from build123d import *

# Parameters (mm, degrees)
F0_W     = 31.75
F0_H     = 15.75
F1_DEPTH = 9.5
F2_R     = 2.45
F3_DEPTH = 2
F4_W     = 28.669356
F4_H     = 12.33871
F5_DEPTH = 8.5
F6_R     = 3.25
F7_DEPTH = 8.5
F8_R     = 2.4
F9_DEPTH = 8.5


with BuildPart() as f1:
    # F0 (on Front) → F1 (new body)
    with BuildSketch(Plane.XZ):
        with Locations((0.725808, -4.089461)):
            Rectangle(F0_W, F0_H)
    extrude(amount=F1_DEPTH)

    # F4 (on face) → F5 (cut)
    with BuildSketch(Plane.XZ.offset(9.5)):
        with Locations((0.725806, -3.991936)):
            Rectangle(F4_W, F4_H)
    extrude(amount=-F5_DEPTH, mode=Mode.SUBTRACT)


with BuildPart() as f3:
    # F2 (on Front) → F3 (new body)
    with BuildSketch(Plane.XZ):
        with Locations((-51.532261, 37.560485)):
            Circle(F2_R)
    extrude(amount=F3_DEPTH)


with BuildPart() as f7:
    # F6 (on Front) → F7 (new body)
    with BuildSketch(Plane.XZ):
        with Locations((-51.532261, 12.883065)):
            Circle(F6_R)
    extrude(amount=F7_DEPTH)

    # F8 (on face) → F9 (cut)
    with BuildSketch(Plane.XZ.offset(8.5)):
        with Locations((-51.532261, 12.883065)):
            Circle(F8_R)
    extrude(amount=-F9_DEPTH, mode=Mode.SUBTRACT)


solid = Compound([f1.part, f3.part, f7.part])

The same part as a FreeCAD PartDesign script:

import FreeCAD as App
import Part
import Sketcher
Q = App.Units.Quantity

doc = App.newDocument("Part")
body = doc.addObject("PartDesign::Body", "Body")

# Sketch on XZ plane
sketch1 = doc.addObject("Sketcher::SketchObject", "Sketch")
body.addObject(sketch1)
sketch1.AttachmentSupport = (doc.XZ_Plane, [""])
sketch1.MapMode = "FlatFace"
sketch1.addGeometry([
    Part.LineSegment(App.Vector(-15, 4, 0), App.Vector(-15, -12, 0)),
    Part.LineSegment(App.Vector(-15, -12, 0), App.Vector(17, -12, 0)),
    Part.LineSegment(App.Vector(17, -12, 0), App.Vector(17, 4, 0)),
    Part.LineSegment(App.Vector(17, 4, 0), App.Vector(-15, 4, 0)),
], False)
sketch1.addConstraint([
    Sketcher.Constraint("Coincident", 0, 2, 1, 1),
    Sketcher.Constraint("Coincident", 1, 2, 2, 1),
    Sketcher.Constraint("Coincident", 2, 2, 3, 1),
    Sketcher.Constraint("Coincident", 3, 2, 0, 1),
    Sketcher.Constraint("Vertical", 0),
    Sketcher.Constraint("Horizontal", 1),
    Sketcher.Constraint("Vertical", 2),
    Sketcher.Constraint("Horizontal", 3),
    Sketcher.Constraint("DistanceX", 1, 1, 1, 2, Q("31.75 mm")),
    Sketcher.Constraint("DistanceY", 0, 2, 0, 1, Q("15.75 mm")),
    Sketcher.Constraint("DistanceX", 0, 2, -1, 1, Q("15.149192 mm")),
    Sketcher.Constraint("DistanceY", 0, 2, -1, 1, Q("11.964461 mm")),
])
pad1 = doc.addObject("PartDesign::Pad", "Pad")
body.addObject(pad1)
pad1.Profile = sketch1
pad1.Length = 9.5

# Sketch on XZ plane
sketch2 = doc.addObject("Sketcher::SketchObject", "Sketch001")
body.addObject(sketch2)
sketch2.AttachmentSupport = (doc.XZ_Plane, [""])
sketch2.MapMode = "FlatFace"
sketch2.AttachmentOffset = App.Placement(App.Vector(0, 0, 9.5), App.Rotation())
sketch2.addGeometry([
    Part.LineSegment(App.Vector(-14, 2, 0), App.Vector(-14, -10, 0)),
    Part.LineSegment(App.Vector(-14, -10, 0), App.Vector(15, -10, 0)),
    Part.LineSegment(App.Vector(15, -10, 0), App.Vector(15, 2, 0)),
    Part.LineSegment(App.Vector(15, 2, 0), App.Vector(-14, 2, 0)),
], False)
sketch2.addConstraint([
    Sketcher.Constraint("Coincident", 0, 2, 1, 1),
    Sketcher.Constraint("Coincident", 1, 2, 2, 1),
    Sketcher.Constraint("Coincident", 2, 2, 3, 1),
    Sketcher.Constraint("Coincident", 3, 2, 0, 1),
    Sketcher.Constraint("Vertical", 0),
    Sketcher.Constraint("Horizontal", 1),
    Sketcher.Constraint("Vertical", 2),
    Sketcher.Constraint("Horizontal", 3),
    Sketcher.Constraint("DistanceY", 0, 2, 0, 1, Q("12.33871 mm")),
    Sketcher.Constraint("DistanceX", 1, 1, 1, 2, Q("28.669356 mm")),
    Sketcher.Constraint("DistanceY", 0, 2, -1, 1, Q("10.161291 mm")),
    Sketcher.Constraint("DistanceX", 0, 2, -1, 1, Q("13.608872 mm")),
])
pocket1 = doc.addObject("PartDesign::Pocket", "Pocket")
body.addObject(pocket1)
pocket1.Profile = sketch2
pocket1.Length = 8.5
body2 = doc.addObject("PartDesign::Body", "Body001")

# Sketch on XZ plane
sketch3 = doc.addObject("Sketcher::SketchObject", "Sketch002")
body2.addObject(sketch3)
sketch3.AttachmentSupport = (doc.getObject("XZ_Plane001"), [""])
sketch3.MapMode = "FlatFace"
sketch3.addGeometry(Part.Circle(App.Vector(-51.5, 37.6, 0), App.Vector(0, 0, 1), 2.5), False)
sketch3.addConstraint([
    Sketcher.Constraint("Diameter", 0, Q("4.9 mm")),
    Sketcher.Constraint("DistanceX", 0, 3, -1, 1, Q("51.532261 mm")),
    Sketcher.Constraint("DistanceY", -1, 1, 0, 3, Q("37.560485 mm")),
])
pad2 = doc.addObject("PartDesign::Pad", "Pad001")
body2.addObject(pad2)
pad2.Profile = sketch3
pad2.Length = 2
body3 = doc.addObject("PartDesign::Body", "Body002")

# Sketch on XZ plane
sketch4 = doc.addObject("Sketcher::SketchObject", "Sketch003")
body3.addObject(sketch4)
sketch4.AttachmentSupport = (doc.getObject("XZ_Plane002"), [""])
sketch4.MapMode = "FlatFace"
sketch4.addGeometry(Part.Circle(App.Vector(-51.5, 12.9, 0), App.Vector(0, 0, 1), 3.2), False)
sketch4.addConstraint([
    Sketcher.Constraint("Diameter", 0, Q("6.5 mm")),
    Sketcher.Constraint("DistanceX", 0, 3, -1, 1, Q("51.532261 mm")),
    Sketcher.Constraint("DistanceY", -1, 1, 0, 3, Q("12.883065 mm")),
])
pad3 = doc.addObject("PartDesign::Pad", "Pad002")
body3.addObject(pad3)
pad3.Profile = sketch4
pad3.Length = 8.5

# Sketch on XZ plane
sketch5 = doc.addObject("Sketcher::SketchObject", "Sketch004")
body3.addObject(sketch5)
sketch5.AttachmentSupport = (doc.getObject("XZ_Plane002"), [""])
sketch5.MapMode = "FlatFace"
sketch5.AttachmentOffset = App.Placement(App.Vector(0, 0, 8.5), App.Rotation())
sketch5.addGeometry(Part.Circle(App.Vector(-51.5, 12.9, 0), App.Vector(0, 0, 1), 2.4), False)
sketch5.addConstraint([
    Sketcher.Constraint("Diameter", 0, Q("4.8 mm")),
    Sketcher.Constraint("DistanceX", 0, 3, -1, 1, Q("51.532261 mm")),
    Sketcher.Constraint("DistanceY", -1, 1, 0, 3, Q("12.883065 mm")),
])
pocket2 = doc.addObject("PartDesign::Pocket", "Pocket001")
body3.addObject(pocket2)
pocket2.Profile = sketch5
pocket2.Length = 8.5

doc.recompute()
